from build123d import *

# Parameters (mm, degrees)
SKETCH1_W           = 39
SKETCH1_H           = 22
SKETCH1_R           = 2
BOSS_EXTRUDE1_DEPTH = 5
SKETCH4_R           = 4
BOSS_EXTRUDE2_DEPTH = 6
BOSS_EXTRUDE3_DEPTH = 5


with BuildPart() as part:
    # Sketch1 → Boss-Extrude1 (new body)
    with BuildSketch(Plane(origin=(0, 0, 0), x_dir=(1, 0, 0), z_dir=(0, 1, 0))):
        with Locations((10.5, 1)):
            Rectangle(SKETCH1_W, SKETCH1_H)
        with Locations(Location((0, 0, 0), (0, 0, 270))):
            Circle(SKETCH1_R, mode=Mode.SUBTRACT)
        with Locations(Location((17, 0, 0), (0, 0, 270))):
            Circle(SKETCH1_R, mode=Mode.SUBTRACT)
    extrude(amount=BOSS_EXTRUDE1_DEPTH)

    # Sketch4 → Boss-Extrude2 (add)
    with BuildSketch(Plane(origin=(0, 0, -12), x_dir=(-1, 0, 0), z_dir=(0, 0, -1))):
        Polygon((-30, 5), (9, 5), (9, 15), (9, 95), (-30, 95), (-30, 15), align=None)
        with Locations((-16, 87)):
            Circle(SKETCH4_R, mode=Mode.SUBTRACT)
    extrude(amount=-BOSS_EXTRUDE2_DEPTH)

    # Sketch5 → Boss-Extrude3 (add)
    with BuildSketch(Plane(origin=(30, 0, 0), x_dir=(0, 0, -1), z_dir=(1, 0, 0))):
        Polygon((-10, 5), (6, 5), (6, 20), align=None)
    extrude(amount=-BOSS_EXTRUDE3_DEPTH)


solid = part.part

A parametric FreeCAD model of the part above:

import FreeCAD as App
import Part
import Sketcher

V = App.Vector


def add_polygon(sketch, points):
    """Adds a closed chain of lines whose ends are joined by coincident constraints."""
    first, n = sketch.GeometryCount, len(points)
    for a, b in zip(points, points[1:] + points[:1]):
        sketch.addGeometry(Part.LineSegment(App.Vector(*a, 0), App.Vector(*b, 0)), False)
    for i in range(n):
        sketch.addConstraint(Sketcher.Constraint("Coincident", first + i, 2, first + (i + 1) % n, 1))

doc = App.newDocument("Part")
params = doc.addObject("Spreadsheet::Sheet", "Params")
for row, (alias, value) in enumerate([
    ("sketch1_diameter", "4 mm"),
    ("sketch1_width", "39 mm"),
    ("sketch1_height", "22 mm"),
    ("pad1_length", "5 mm"),
    ("sketch2_diameter", "8 mm"),
    ("sketch2_width", "39 mm"),
    ("sketch2_height", "90 mm"),
    ("pad2_length", "6 mm"),
    ("sketch3_width", "15 mm"),
    ("sketch3_height", "16 mm"),
    ("pad3_length", "5 mm"),
], start=1):
    params.set(f"A{row}", alias)
    params.set(f"B{row}", "=" + value)
    params.setAlias(f"B{row}", alias)

body = doc.addObject("PartDesign::Body", "Body")

# Sketch on XZ plane
sketch1 = doc.addObject("Sketcher::SketchObject", "Sketch")
body.addObject(sketch1)
sketch1.AttachmentSupport = (doc.XZ_Plane, [""])
sketch1.MapMode = "FlatFace"
add_polygon(sketch1, [(-9, -12), (-9, 10), (30, 10), (30, -12)])  # lines 0-3
sketch1.addGeometry(Part.Circle(V(0, 0, 0), V(0, 0, 1), 2), False)  # 4
sketch1.addGeometry(Part.Circle(V(17, 0, 0), V(0, 0, 1), 2), False)  # 5
sketch1.addConstraint(Sketcher.Constraint("Vertical", 0))
sketch1.addConstraint(Sketcher.Constraint("Horizontal", 1))
sketch1.addConstraint(Sketcher.Constraint("Vertical", 2))
sketch1.addConstraint(Sketcher.Constraint("Horizontal", 3))
sketch1.addConstraint(Sketcher.Constraint("Coincident", 4, 3, -1, 1))
sketch1.addConstraint(Sketcher.Constraint("Equal", 4, 5))
sketch1.addConstraint(Sketcher.Constraint("PointOnObject", 5, 3, -1))
sketch1.addConstraint(Sketcher.Constraint("Diameter", 4, 4.0))
sketch1.addConstraint(Sketcher.Constraint("DistanceX", 1, 1, 1, 2, 39.0))
sketch1.addConstraint(Sketcher.Constraint("DistanceY", 0, 1, 0, 2, 22.0))
sketch1.addConstraint(Sketcher.Constraint("DistanceX", -1, 1, 5, 3, 17.0))
sketch1.addConstraint(Sketcher.Constraint("DistanceX", 0, 2, -1, 1, 9.0))
sketch1.addConstraint(Sketcher.Constraint("DistanceY", -1, 1, 0, 2, 10.0))
sketch1.setExpression("Constraints[11]", "Params.sketch1_diameter")
sketch1.setExpression("Constraints[12]", "Params.sketch1_width")
sketch1.setExpression("Constraints[13]", "Params.sketch1_height")
pad1 = doc.addObject("PartDesign::Pad", "Pad")
body.addObject(pad1)
pad1.Profile = sketch1
pad1.setExpression("Length", "Params.pad1_length")
pad1.Reversed = True

# Sketch on XY plane
sketch2 = doc.addObject("Sketcher::SketchObject", "Sketch001")
body.addObject(sketch2)
sketch2.AttachmentSupport = (doc.XY_Plane, [""])
sketch2.MapMode = "FlatFace"
sketch2.AttachmentOffset = App.Placement(V(0, 0, -12), App.Rotation())
add_polygon(sketch2, [(30, 5), (-9, 5), (-9, 95), (30, 95)])  # lines 0-3
sketch2.addGeometry(Part.Circle(V(16, 87, 0), V(0, 0, 1), 4), False)  # 4
sketch2.addConstraint(Sketcher.Constraint("Horizontal", 0))
sketch2.addConstraint(Sketcher.Constraint("Vertical", 1))
sketch2.addConstraint(Sketcher.Constraint("Horizontal", 2))
sketch2.addConstraint(Sketcher.Constraint("Vertical", 3))
sketch2.addConstraint(Sketcher.Constraint("Diameter", 4, 8.0))
sketch2.addConstraint(Sketcher.Constraint("DistanceX", 0, 2, 0, 1, 39.0))
sketch2.addConstraint(Sketcher.Constraint("DistanceY", 1, 1, 1, 2, 90.0))
sketch2.addConstraint(Sketcher.Constraint("DistanceX", -1, 1, 4, 3, 16.0))
sketch2.addConstraint(Sketcher.Constraint("DistanceY", -1, 1, 4, 3, 87.0))
sketch2.addConstraint(Sketcher.Constraint("DistanceX", 0, 2, -1, 1, 9.0))
sketch2.addConstraint(Sketcher.Constraint("DistanceY", -1, 1, 0, 2, 5.0))
sketch2.setExpression("Constraints[8]", "Params.sketch2_diameter")
sketch2.setExpression("Constraints[9]", "Params.sketch2_width")
sketch2.setExpression("Constraints[10]", "Params.sketch2_height")
pad2 = doc.addObject("PartDesign::Pad", "Pad001")
body.addObject(pad2)
pad2.Profile = sketch2
pad2.setExpression("Length", "Params.pad2_length")

# Sketch on YZ plane
sketch3 = doc.addObject("Sketcher::SketchObject", "Sketch002")
body.addObject(sketch3)
sketch3.AttachmentSupport = (doc.YZ_Plane, [""])
sketch3.MapMode = "FlatFace"
sketch3.AttachmentOffset = App.Placement(V(0, 0, 30), App.Rotation())
add_polygon(sketch3, [(5, 10), (5, -6), (20, -6)])  # lines 0-2
sketch3.addConstraint(Sketcher.Constraint("Vertical", 0))
sketch3.addConstraint(Sketcher.Constraint("Horizontal", 1))
sketch3.addConstraint(Sketcher.Constraint("DistanceX", 1, 1, 1, 2, 15.0))
sketch3.addConstraint(Sketcher.Constraint("DistanceY", 0, 2, 0, 1, 16.0))
sketch3.addConstraint(Sketcher.Constraint("DistanceX", -1, 1, 0, 2, 5.0))
sketch3.addConstraint(Sketcher.Constraint("DistanceY", 0, 2, -1, 1, 6.0))
sketch3.setExpression("Constraints[5]", "Params.sketch3_width")
sketch3.setExpression("Constraints[6]", "Params.sketch3_height")
pad3 = doc.addObject("PartDesign::Pad", "Pad002")
body.addObject(pad3)
pad3.Profile = sketch3
pad3.setExpression("Length", "Params.pad3_length")
pad3.Reversed = True

doc.recompute()
